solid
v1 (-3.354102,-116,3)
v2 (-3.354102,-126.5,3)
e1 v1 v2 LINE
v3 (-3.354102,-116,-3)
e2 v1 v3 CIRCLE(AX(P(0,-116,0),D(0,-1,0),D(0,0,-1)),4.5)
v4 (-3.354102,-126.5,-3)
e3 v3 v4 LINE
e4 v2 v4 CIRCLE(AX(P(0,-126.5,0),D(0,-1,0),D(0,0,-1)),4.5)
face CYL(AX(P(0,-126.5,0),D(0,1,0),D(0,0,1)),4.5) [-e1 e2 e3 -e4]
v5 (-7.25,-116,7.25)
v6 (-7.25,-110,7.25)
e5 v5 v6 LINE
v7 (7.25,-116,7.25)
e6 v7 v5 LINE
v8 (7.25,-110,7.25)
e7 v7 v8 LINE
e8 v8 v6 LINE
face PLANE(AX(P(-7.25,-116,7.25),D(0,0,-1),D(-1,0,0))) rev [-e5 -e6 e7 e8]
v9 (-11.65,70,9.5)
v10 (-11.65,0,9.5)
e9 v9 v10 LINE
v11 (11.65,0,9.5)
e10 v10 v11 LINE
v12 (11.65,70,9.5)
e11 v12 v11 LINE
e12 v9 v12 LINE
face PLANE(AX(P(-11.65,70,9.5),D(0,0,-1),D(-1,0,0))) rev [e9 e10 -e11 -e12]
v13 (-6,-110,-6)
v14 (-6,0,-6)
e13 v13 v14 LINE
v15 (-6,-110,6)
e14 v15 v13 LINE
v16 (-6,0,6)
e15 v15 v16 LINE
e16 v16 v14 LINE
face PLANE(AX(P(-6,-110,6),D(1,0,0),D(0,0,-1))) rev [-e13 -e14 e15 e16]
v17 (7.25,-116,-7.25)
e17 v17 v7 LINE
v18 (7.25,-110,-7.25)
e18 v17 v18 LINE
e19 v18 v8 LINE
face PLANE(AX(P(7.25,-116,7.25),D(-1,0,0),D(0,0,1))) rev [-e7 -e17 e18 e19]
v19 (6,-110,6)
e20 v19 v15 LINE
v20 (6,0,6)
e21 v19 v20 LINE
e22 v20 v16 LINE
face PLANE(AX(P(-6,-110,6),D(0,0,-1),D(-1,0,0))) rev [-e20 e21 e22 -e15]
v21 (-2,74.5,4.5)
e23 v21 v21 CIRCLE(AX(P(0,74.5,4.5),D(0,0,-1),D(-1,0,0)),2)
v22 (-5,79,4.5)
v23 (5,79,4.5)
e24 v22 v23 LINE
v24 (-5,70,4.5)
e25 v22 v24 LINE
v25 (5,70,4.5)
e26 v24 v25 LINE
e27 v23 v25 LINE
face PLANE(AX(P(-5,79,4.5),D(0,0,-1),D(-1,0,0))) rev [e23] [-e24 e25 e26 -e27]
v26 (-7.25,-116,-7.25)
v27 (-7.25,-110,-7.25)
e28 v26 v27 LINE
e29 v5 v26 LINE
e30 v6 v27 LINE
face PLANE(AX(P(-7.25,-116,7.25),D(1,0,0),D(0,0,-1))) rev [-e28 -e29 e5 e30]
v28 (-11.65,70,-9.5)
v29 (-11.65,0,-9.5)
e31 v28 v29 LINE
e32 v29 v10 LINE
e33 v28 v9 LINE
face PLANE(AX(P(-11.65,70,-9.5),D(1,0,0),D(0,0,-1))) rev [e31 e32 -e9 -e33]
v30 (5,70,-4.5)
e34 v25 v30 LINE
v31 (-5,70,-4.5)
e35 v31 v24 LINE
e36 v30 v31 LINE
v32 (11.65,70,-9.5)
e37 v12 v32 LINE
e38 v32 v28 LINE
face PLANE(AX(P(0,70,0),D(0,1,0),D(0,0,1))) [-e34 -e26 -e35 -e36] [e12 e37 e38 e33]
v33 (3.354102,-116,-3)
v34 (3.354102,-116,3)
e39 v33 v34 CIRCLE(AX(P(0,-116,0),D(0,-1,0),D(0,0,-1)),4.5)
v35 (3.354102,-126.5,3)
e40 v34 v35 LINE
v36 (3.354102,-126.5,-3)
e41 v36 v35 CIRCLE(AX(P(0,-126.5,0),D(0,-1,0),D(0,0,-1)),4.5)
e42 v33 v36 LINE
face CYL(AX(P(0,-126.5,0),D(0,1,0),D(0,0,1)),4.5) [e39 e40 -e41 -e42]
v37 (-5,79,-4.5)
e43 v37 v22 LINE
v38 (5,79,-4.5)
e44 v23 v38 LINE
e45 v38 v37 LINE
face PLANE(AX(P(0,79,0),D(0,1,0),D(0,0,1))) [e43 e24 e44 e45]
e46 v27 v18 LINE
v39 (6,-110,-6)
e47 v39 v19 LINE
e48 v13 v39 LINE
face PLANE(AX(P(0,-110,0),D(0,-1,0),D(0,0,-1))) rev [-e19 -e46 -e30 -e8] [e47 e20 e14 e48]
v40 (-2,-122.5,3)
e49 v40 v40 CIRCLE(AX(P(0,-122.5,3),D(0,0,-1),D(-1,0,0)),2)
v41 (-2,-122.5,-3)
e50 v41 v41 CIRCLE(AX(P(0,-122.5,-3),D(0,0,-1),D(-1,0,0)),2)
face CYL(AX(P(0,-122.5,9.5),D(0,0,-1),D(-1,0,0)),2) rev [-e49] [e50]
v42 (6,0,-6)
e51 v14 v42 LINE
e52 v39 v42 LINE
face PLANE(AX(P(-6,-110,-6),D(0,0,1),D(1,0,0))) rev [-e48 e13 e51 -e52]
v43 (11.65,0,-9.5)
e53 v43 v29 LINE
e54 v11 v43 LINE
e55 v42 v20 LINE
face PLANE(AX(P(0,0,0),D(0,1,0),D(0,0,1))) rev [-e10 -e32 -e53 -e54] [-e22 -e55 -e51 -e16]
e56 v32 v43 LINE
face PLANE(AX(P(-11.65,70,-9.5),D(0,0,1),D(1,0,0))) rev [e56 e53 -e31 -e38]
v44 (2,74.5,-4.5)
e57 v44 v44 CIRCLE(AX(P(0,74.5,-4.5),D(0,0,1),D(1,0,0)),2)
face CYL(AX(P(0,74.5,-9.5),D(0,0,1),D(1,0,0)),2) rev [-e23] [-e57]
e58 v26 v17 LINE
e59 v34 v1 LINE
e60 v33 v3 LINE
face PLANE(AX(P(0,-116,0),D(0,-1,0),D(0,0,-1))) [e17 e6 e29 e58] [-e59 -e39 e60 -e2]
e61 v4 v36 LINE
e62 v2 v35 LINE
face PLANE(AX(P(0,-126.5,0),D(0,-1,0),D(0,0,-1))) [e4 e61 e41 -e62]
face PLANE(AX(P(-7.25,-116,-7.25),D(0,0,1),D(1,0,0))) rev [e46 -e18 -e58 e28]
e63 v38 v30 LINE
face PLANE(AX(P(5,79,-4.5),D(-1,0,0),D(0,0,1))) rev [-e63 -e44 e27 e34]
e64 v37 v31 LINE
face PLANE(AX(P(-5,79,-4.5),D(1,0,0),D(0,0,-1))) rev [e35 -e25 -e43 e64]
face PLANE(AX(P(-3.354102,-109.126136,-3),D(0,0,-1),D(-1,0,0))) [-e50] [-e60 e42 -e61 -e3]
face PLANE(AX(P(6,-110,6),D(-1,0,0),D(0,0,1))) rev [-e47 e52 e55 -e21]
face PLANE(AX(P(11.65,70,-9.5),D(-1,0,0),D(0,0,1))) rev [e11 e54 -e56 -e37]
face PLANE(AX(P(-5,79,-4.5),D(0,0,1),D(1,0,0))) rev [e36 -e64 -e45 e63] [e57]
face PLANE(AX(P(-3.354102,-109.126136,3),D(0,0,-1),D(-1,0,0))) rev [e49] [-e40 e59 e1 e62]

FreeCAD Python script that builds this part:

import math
import FreeCAD as App
import Part
import Sketcher
Q = App.Units.Quantity


def add_polygon(sketch, points):
    """Adds a closed chain of lines whose ends are joined by coincident constraints."""
    first, n = sketch.GeometryCount, len(points)
    for a, b in zip(points, points[1:] + points[:1]):
        sketch.addGeometry(Part.LineSegment(App.Vector(*a, 0), App.Vector(*b, 0)), False)
    for i in range(n):
        sketch.addConstraint(Sketcher.Constraint("Coincident", first + i, 2, first + (i + 1) % n, 1))

doc = App.newDocument("Part")
params = doc.addObject("Spreadsheet::Sheet", "Params")
for row, (alias, value) in enumerate([
    ("sketch1_height", "19 mm"),
    ("sketch1_width", "23.3 mm"),
    ("pad1_length", "70 mm"),
    ("sketch2_width", "10 mm"),
    ("sketch2_height", "9 mm"),
    ("pad2_length", "9 mm"),
    ("sketch3_diameter", "4 mm"),
    ("sketch4_width", "12 mm"),
    ("pad3_length", "110 mm"),
    ("sketch5_width", "14.5 mm"),
    ("pad4_length", "6 mm"),
    ("sketch6_diameter", "9 mm"),
    ("pad5_length", "10.5 mm"),
    ("sketch7_radius", "4.5 mm"),
    ("pocket2_length", "10.5 mm"),
    ("sketch8_diameter", "4 mm"),
], start=1):
    params.set(f"A{row}", alias)
    params.set(f"B{row}", "=" + value)
    params.setAlias(f"B{row}", alias)

body = doc.addObject("PartDesign::Body", "Body")

sketch1 = body.newObject("Sketcher::SketchObject", "Sketch")
sketch1.AttachmentSupport = (doc.getObject("XZ_Plane"), [""])
sketch1.MapMode = "FlatFace"
add_polygon(sketch1, [(-11.65, -9.5), (-11.65, 9.5), (11.65, 9.5), (11.65, -9.5)])
sketch1.addConstraint([
    Sketcher.Constraint("Vertical", 0),
    Sketcher.Constraint("Horizontal", 1),
    Sketcher.Constraint("Vertical", 2),
    Sketcher.Constraint("Horizontal", 3),
    Sketcher.Constraint("Symmetric", 0, 2, 2, 2, -1, 1),
    Sketcher.Constraint("DistanceY", 0, 1, 0, 2, Q("19 mm")),
    Sketcher.Constraint("DistanceX", 1, 1, 1, 2, Q("23.3 mm")),
])
sketch1.setExpression("Constraints[9]", "Params.sketch1_height")
sketch1.setExpression("Constraints[10]", "Params.sketch1_width")
pad1 = body.newObject("PartDesign::Pad", "Pad")
pad1.Profile = sketch1
pad1.setExpression("Length", "Params.pad1_length")
pad1.Reversed = True

sketch2 = body.newObject("Sketcher::SketchObject", "Sketch001")
sketch2.AttachmentSupport = (doc.getObject("XZ_Plane"), [""])
sketch2.MapMode = "FlatFace"
sketch2.AttachmentOffset = App.Placement(App.Vector(0, 0, -70), App.Rotation())
add_polygon(sketch2, [(-5, -4.5), (-5, 4.5), (5, 4.5), (5, -4.5)])
sketch2.addConstraint([
    Sketcher.Constraint("Vertical", 0),
    Sketcher.Constraint("Horizontal", 1),
    Sketcher.Constraint("Vertical", 2),
    Sketcher.Constraint("Horizontal", 3),
    Sketcher.Constraint("Symmetric", 0, 2, 2, 2, -1, 1),
    Sketcher.Constraint("DistanceX", 1, 1, 1, 2, Q("10 mm")),
    Sketcher.Constraint("DistanceY", 0, 1, 0, 2, Q("9 mm")),
])
sketch2.setExpression("Constraints[9]", "Params.sketch2_width")
sketch2.setExpression("Constraints[10]", "Params.sketch2_height")
pad2 = body.newObject("PartDesign::Pad", "Pad001")
pad2.Profile = sketch2
pad2.setExpression("Length", "Params.pad2_length")
pad2.Reversed = True

sketch3 = body.newObject("Sketcher::SketchObject", "Sketch002")
sketch3.AttachmentSupport = (doc.getObject("XY_Plane"), [""])
sketch3.MapMode = "FlatFace"
sketch3.AttachmentOffset = App.Placement(App.Vector(0, 0, 4.5), App.Rotation())
sketch3.addGeometry(Part.Circle(App.Vector(0, 74.5, 0), App.Vector(0, 0, 1), 2), False)
sketch3.addConstraint([
    Sketcher.Constraint("PointOnObject", 0, 3, -2),
    Sketcher.Constraint("Diameter", 0, Q("4 mm")),
    Sketcher.Constraint("DistanceY", -1, 1, 0, 3, Q("74.5 mm")),
])
sketch3.setExpression("Constraints[1]", "Params.sketch3_diameter")
pocket1 = body.newObject("PartDesign::Pocket", "Pocket")
pocket1.Profile = sketch3
pocket1.Type = "ThroughAll"
pocket1.Midplane = True

sketch4 = body.newObject("Sketcher::SketchObject", "Sketch003")
sketch4.AttachmentSupport = (doc.getObject("XZ_Plane"), [""])
sketch4.MapMode = "FlatFace"
add_polygon(sketch4, [(-6, 6), (-6, -6), (6, -6), (6, 6)])
sketch4.addConstraint([
    Sketcher.Constraint("Vertical", 0),
    Sketcher.Constraint("Horizontal", 1),
    Sketcher.Constraint("Vertical", 2),
    Sketcher.Constraint("Horizontal", 3),
    Sketcher.Constraint("Symmetric", 0, 2, 2, 2, -1, 1),
    Sketcher.Constraint("Equal", 3, 0),
    Sketcher.Constraint("DistanceX", 1, 1, 1, 2, Q("12 mm")),
])
sketch4.setExpression("Constraints[10]", "Params.sketch4_width")
pad3 = body.newObject("PartDesign::Pad", "Pad002")
pad3.Profile = sketch4
pad3.setExpression("Length", "Params.pad3_length")

sketch5 = body.newObject("Sketcher::SketchObject", "Sketch004")
sketch5.AttachmentSupport = (doc.getObject("XZ_Plane"), [""])
sketch5.MapMode = "FlatFace"
sketch5.AttachmentOffset = App.Placement(App.Vector(0, 0, 110), App.Rotation())
add_polygon(sketch5, [(-7.25, 7.25), (-7.25, -7.25), (7.25, -7.25), (7.25, 7.25)])
sketch5.addConstraint([
    Sketcher.Constraint("Vertical", 0),
    Sketcher.Constraint("Horizontal", 1),
    Sketcher.Constraint("Vertical", 2),
    Sketcher.Constraint("Horizontal", 3),
    Sketcher.Constraint("Symmetric", 0, 2, 2, 2, -1, 1),
    Sketcher.Constraint("Equal", 3, 0),
    Sketcher.Constraint("DistanceX", 1, 1, 1, 2, Q("14.5 mm")),
])
sketch5.setExpression("Constraints[10]", "Params.sketch5_width")
pad4 = body.newObject("PartDesign::Pad", "Pad003")
pad4.Profile = sketch5
pad4.setExpression("Length", "Params.pad4_length")

sketch6 = body.newObject("Sketcher::SketchObject", "Sketch005")
sketch6.AttachmentSupport = (doc.getObject("XZ_Plane"), [""])
sketch6.MapMode = "FlatFace"
sketch6.AttachmentOffset = App.Placement(App.Vector(0, 0, 116), App.Rotation())
sketch6.addGeometry(Part.Circle(App.Vector(0, 0, 0), App.Vector(0, 0, 1), 4.5), False)
sketch6.addConstraint([
    Sketcher.Constraint("Coincident", 0, 3, -1, 1),
    Sketcher.Constraint("Diameter", 0, Q("9 mm")),
])
sketch6.setExpression("Constraints[1]", "Params.sketch6_diameter")
pad5 = body.newObject("PartDesign::Pad", "Pad004")
pad5.Profile = sketch6
pad5.setExpression("Length", "Params.pad5_length")

sketch7 = body.newObject("Sketcher::SketchObject", "Sketch006")
sketch7.AttachmentSupport = (doc.getObject("XZ_Plane"), [""])
sketch7.MapMode = "FlatFace"
sketch7.AttachmentOffset = App.Placement(App.Vector(0, 0, 126.5), App.Rotation())
sketch7.addGeometry([
    Part.LineSegment(App.Vector(3.354102, -3, 0), App.Vector(-3.354102, -3, 0)),
    Part.ArcOfCircle(Part.Circle(App.Vector(0, 0, 0), App.Vector(0, 0, 1), 4.5), math.radians(-138.189685), math.radians(-41.810315)),
    Part.LineSegment(App.Vector(-3.354102, 3, 0), App.Vector(3.354102, 3, 0)),
    Part.ArcOfCircle(Part.Circle(App.Vector(0, 0, 0), App.Vector(0, 0, 1), 4.5), math.radians(41.810315), math.radians(138.189685)),
], False)
sketch7.addConstraint([
    Sketcher.Constraint("Coincident", 0, 1, 1, 2),
    Sketcher.Constraint("Coincident", 1, 1, 0, 2),
    Sketcher.Constraint("Coincident", 2, 1, 3, 2),
    Sketcher.Constraint("Coincident", 3, 1, 2, 2),
    Sketcher.Constraint("Horizontal", 0),
    Sketcher.Constraint("Horizontal", 2),
    Sketcher.Constraint("Coincident", 1, 3, -1, 1),
    Sketcher.Constraint("Coincident", 3, 3, -1, 1),
    Sketcher.Constraint("Equal", 1, 3),
    Sketcher.Constraint("Vertical", 1, 1, 2, 1),
    Sketcher.Constraint("Radius", 1, Q("4.5 mm")),
    Sketcher.Constraint("DistanceY", 0, 1, -1, 1, Q("3 mm")),
])
sketch7.setExpression("Constraints[10]", "Params.sketch7_radius")
pocket2 = body.newObject("PartDesign::Pocket", "Pocket001")
pocket2.Profile = sketch7
pocket2.setExpression("Length", "Params.pocket2_length")

sketch8 = body.newObject("Sketcher::SketchObject", "Sketch007")
sketch8.AttachmentSupport = (doc.getObject("XY_Plane"), [""])
sketch8.MapMode = "FlatFace"
sketch8.AttachmentOffset = App.Placement(App.Vector(0, 0, -3), App.Rotation())
sketch8.addGeometry(Part.Circle(App.Vector(0, -122.5, 0), App.Vector(0, 0, 1), 2), False)
sketch8.addConstraint([
    Sketcher.Constraint("PointOnObject", 0, 3, -2),
    Sketcher.Constraint("Diameter", 0, Q("4 mm")),
    Sketcher.Constraint("DistanceY", 0, 3, -1, 1, Q("122.5 mm")),
])
sketch8.setExpression("Constraints[1]", "Params.sketch8_diameter")
pocket3 = body.newObject("PartDesign::Pocket", "Pocket002")
pocket3.Profile = sketch8
pocket3.Type = "ThroughAll"
pocket3.Reversed = True

doc.recompute()
